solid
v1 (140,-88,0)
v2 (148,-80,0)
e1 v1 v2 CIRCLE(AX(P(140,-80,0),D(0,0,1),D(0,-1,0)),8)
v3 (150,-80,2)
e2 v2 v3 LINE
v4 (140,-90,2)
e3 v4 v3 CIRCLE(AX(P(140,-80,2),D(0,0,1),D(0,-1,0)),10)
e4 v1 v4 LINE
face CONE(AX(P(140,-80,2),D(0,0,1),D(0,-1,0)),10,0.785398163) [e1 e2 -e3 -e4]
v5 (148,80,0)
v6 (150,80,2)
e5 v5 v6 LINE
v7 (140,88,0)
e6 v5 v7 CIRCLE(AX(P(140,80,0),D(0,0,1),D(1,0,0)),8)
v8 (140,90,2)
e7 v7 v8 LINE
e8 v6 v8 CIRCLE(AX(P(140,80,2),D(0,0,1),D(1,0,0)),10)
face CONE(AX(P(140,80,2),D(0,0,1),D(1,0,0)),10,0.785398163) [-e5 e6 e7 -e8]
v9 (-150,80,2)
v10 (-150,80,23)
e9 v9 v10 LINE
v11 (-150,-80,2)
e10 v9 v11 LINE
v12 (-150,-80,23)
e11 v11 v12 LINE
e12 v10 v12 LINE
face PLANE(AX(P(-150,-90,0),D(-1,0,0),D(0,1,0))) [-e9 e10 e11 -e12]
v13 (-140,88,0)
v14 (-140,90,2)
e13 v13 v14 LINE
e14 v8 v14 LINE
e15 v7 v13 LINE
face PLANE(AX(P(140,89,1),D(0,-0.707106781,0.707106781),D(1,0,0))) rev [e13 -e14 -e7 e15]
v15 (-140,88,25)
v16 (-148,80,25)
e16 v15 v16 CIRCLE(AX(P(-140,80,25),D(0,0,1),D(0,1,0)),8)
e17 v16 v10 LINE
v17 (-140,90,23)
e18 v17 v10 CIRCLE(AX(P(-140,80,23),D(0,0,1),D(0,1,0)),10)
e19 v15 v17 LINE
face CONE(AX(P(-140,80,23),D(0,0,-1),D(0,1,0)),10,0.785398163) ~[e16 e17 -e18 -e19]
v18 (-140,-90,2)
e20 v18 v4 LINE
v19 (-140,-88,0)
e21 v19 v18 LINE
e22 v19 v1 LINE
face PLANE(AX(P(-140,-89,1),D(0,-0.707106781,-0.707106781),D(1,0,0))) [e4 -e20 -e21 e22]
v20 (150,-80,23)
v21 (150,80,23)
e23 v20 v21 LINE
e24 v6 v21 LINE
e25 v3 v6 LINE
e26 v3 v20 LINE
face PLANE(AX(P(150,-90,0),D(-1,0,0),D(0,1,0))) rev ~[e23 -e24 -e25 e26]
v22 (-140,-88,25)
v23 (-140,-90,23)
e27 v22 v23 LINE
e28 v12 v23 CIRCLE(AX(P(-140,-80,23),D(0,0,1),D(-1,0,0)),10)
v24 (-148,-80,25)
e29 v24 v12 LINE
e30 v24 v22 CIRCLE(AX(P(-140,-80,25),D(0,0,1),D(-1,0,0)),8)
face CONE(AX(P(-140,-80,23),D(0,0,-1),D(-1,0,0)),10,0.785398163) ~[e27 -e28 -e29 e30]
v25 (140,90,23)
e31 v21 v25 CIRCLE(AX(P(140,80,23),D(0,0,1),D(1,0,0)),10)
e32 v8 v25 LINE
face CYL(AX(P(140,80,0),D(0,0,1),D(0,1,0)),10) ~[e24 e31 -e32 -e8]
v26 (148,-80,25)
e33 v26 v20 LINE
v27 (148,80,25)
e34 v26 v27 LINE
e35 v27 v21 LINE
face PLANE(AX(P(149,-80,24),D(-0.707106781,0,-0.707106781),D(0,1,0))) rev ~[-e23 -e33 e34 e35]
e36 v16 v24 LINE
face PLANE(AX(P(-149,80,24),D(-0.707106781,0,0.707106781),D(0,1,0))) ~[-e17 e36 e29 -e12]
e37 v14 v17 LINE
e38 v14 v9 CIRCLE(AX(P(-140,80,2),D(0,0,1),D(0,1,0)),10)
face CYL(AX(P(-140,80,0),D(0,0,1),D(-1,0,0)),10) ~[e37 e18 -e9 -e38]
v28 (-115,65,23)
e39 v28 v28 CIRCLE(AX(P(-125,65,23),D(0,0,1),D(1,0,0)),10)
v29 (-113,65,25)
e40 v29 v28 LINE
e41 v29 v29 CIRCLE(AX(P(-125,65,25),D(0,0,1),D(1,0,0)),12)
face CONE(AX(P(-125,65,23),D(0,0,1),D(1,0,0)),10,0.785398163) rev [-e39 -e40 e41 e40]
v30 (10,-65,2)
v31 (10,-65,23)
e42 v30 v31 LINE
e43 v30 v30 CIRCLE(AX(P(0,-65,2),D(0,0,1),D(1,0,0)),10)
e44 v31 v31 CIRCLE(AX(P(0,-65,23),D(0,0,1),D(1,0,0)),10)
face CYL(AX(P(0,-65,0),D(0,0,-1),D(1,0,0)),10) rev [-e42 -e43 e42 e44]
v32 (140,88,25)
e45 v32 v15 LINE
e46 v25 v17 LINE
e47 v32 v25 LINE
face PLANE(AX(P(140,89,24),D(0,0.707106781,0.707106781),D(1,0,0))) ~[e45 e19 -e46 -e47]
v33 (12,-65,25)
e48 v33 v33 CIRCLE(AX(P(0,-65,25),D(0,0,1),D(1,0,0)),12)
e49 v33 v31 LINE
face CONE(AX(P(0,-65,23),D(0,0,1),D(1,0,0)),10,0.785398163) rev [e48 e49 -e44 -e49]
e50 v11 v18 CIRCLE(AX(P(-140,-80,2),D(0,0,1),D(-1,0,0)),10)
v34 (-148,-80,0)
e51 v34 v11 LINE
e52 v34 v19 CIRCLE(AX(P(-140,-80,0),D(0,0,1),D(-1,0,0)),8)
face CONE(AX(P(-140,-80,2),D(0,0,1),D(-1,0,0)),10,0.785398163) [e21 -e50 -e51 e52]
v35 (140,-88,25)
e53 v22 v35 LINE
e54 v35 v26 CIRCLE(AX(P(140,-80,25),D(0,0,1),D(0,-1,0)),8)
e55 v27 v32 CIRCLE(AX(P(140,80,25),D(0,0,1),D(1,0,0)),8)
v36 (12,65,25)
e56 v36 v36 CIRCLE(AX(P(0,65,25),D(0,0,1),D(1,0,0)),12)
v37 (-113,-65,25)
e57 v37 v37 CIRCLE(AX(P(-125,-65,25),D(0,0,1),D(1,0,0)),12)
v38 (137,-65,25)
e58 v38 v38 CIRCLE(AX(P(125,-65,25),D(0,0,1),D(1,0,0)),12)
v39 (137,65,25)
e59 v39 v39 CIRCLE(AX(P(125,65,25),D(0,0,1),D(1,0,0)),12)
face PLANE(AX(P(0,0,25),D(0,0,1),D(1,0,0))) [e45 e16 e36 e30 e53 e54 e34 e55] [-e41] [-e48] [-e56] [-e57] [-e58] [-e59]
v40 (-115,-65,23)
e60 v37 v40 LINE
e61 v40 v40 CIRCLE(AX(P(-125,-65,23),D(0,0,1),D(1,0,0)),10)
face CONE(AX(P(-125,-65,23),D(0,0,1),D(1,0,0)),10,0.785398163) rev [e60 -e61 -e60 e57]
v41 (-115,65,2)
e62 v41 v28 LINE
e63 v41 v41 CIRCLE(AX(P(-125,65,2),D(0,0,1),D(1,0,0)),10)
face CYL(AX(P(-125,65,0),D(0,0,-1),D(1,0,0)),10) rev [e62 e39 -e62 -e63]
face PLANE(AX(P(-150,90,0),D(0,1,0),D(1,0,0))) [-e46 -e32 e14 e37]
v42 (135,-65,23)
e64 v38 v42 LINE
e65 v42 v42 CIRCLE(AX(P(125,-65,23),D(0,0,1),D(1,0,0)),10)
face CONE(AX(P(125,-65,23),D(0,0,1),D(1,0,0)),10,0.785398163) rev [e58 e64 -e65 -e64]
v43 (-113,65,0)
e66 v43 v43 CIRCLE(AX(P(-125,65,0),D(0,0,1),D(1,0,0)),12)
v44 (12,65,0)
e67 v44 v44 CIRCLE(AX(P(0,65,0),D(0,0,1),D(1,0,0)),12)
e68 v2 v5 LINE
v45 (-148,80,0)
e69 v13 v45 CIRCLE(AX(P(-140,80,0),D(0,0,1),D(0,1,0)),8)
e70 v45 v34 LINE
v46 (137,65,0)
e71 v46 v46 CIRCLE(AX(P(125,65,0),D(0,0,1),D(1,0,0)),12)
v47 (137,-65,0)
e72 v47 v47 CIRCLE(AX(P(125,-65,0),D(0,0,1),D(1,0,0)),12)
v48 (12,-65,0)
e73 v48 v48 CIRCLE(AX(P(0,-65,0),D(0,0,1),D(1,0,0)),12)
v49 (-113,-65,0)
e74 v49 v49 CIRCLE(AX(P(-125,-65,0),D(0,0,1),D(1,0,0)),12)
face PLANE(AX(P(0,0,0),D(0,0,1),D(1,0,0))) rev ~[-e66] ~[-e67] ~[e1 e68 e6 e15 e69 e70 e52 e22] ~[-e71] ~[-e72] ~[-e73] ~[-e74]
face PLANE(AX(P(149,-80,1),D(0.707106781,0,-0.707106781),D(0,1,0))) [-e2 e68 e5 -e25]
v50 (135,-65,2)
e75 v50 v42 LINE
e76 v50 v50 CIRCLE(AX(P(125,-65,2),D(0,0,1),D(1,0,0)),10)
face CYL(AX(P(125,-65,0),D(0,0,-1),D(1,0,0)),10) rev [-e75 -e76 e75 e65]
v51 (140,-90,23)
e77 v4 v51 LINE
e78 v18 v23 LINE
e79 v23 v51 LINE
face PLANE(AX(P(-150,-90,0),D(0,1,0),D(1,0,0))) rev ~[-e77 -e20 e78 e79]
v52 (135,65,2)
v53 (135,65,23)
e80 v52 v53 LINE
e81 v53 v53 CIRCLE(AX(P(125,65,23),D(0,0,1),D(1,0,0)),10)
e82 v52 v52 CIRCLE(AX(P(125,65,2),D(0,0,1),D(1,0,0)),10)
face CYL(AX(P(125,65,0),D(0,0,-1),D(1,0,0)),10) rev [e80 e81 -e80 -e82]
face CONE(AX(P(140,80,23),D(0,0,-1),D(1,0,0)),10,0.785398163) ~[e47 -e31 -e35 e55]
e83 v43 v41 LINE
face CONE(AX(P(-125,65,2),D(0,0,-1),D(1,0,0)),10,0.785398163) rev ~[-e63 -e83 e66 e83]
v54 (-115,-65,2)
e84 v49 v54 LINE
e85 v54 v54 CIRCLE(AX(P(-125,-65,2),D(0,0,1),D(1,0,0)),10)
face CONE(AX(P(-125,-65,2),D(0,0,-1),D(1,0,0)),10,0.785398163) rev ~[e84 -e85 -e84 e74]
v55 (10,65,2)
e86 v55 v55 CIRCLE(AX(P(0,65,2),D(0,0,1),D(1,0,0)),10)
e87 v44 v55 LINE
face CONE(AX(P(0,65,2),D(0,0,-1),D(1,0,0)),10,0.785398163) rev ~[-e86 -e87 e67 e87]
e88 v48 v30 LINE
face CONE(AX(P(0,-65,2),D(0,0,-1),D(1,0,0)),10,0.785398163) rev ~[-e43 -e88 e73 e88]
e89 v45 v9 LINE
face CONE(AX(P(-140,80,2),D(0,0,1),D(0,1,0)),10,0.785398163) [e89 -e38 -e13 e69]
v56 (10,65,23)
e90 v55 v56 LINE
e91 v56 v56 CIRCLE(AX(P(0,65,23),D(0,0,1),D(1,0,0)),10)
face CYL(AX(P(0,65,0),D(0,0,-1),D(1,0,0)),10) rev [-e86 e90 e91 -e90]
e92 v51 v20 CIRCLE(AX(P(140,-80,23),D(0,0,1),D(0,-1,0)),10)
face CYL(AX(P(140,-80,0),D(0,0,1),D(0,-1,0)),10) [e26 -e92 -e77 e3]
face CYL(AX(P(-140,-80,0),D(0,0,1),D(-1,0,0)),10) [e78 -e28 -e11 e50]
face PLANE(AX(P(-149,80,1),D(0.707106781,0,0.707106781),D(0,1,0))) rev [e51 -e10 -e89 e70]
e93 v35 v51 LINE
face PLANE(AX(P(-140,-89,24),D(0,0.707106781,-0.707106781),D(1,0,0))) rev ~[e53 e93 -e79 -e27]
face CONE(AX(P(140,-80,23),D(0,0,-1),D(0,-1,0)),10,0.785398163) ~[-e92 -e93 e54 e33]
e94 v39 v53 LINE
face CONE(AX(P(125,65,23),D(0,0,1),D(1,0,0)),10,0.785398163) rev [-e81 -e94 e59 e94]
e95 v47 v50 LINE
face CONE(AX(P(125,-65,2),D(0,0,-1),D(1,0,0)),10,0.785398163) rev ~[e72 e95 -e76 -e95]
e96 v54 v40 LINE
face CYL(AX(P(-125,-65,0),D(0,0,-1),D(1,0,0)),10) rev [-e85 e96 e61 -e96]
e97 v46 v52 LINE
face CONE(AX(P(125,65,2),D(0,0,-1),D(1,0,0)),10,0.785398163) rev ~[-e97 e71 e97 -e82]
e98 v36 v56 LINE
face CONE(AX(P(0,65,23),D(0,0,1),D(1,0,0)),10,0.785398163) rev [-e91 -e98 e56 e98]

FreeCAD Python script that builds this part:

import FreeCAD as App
import Part
import Sketcher


def edges_at(feature, points):
    """Names of the edges that pass closest to the given points."""
    edges = feature.Shape.Edges
    near = lambda p: min(range(len(edges)), key=lambda i: edges[i].distToShape(Part.Vertex(*p))[0])
    return sorted({f"Edge{near(p) + 1}" for p in points})


def add_polygon(sketch, points):
    """Adds a closed chain of lines whose ends are joined by coincident constraints."""
    first, n = sketch.GeometryCount, len(points)
    for a, b in zip(points, points[1:] + points[:1]):
        sketch.addGeometry(Part.LineSegment(App.Vector(*a, 0), App.Vector(*b, 0)), False)
    for i in range(n):
        sketch.addConstraint(Sketcher.Constraint("Coincident", first + i, 2, first + (i + 1) % n, 1))

doc = App.newDocument("Part")
body = doc.addObject("PartDesign::Body", "Body")

sketch1 = body.newObject("Sketcher::SketchObject", "Sketch")
sketch1.AttachmentSupport = (doc.getObject("XY_Plane"), [""])
sketch1.MapMode = "FlatFace"
add_polygon(sketch1, [(-150, 90), (-150, -90), (150, -90), (150, 90)])
sketch1.addGeometry(Part.Circle(App.Vector(-125, -65, 0), App.Vector(0, 0, 1), 10), False)
sketch1.addGeometry(Part.Circle(App.Vector(0, -65, 0), App.Vector(0, 0, 1), 10), False)
sketch1.addGeometry(Part.Circle(App.Vector(125, -65, 0), App.Vector(0, 0, 1), 10), False)
sketch1.addGeometry(Part.Circle(App.Vector(-125, 65, 0), App.Vector(0, 0, 1), 10), False)
sketch1.addGeometry(Part.Circle(App.Vector(0, 65, 0), App.Vector(0, 0, 1), 10), False)
sketch1.addGeometry(Part.Circle(App.Vector(125, 65, 0), App.Vector(0, 0, 1), 10), False)
sketch1.addConstraint([
    Sketcher.Constraint("Vertical", 0),
    Sketcher.Constraint("Horizontal", 1),
    Sketcher.Constraint("Vertical", 2),
    Sketcher.Constraint("Horizontal", 3),
    Sketcher.Constraint("Equal", 4, 5),
    Sketcher.Constraint("Equal", 5, 6),
    Sketcher.Constraint("Equal", 6, 7),
    Sketcher.Constraint("Equal", 7, 8),
    Sketcher.Constraint("Equal", 8, 9),
    Sketcher.Constraint("Symmetric", 6, 3, 7, 3, -1, 1),
    Sketcher.Constraint("Symmetric", 5, 3, 8, 3, -1, 1),
    Sketcher.Constraint("Symmetric", 4, 3, 9, 3, -1, 1),
    Sketcher.Constraint("Symmetric", 0, 2, 2, 2, -1, 1),
    Sketcher.Constraint("Symmetric", 4, 3, 6, 3, -2),
    Sketcher.Constraint("PointOnObject", 5, 3, -2),
    Sketcher.Constraint("Horizontal", 4, 3, 5, 3),
    Sketcher.Constraint("Diameter", 4, 20.0),
    Sketcher.Constraint("DistanceX", 1, 1, 1, 2, 300.0),
    Sketcher.Constraint("DistanceY", 0, 2, 0, 1, 180.0),
    Sketcher.Constraint("DistanceX", 4, 3, -1, 1, 125.0),
    Sketcher.Constraint("DistanceY", 4, 3, -1, 1, 65.0),
])
pad1 = body.newObject("PartDesign::Pad", "Pad")
pad1.Profile = sketch1
pad1.Length = 25
doc.recompute()

fillet = body.newObject("PartDesign::Fillet", "Fillet")
fillet.Base = (pad1, edges_at(pad1, [
    (-150, -90, 12.5),
    (-150, 90, 12.5),
    (150, -90, 12.5),
    (150, 90, 12.5),
]))
fillet.Radius = 10
doc.recompute()

chamfer = body.newObject("PartDesign::Chamfer", "Chamfer")
chamfer.Base = (fillet, edges_at(fillet, [
    (150, 0, 25),
    (147.071, -87.071, 25),
    (147.071, 87.071, 25),
    (0, -90, 25),
    (0, 90, 25),
    (-147.071, -87.071, 25),
    (-147.071, 87.071, 25),
    (-150, 0, 25),
    (-135, -65, 25),
    (-10, -65, 25),
    (115, -65, 25),
    (-135, 65, 25),
    (-10, 65, 25),
    (115, 65, 25),
    (150, 0, 0),
    (147.071, -87.071, 0),
    (147.071, 87.071, 0),
    (0, -90, 0),
    (0, 90, 0),
    (-147.071, -87.071, 0),
    (-147.071, 87.071, 0),
    (-150, 0, 0),
    (-135, -65, 0),
    (-10, -65, 0),
    (115, -65, 0),
    (-135, 65, 0),
    (-10, 65, 0),
    (115, 65, 0),
]))
chamfer.ChamferType = "Two distances"
chamfer.Size = 2
chamfer.Size2 = 2

doc.recompute()
